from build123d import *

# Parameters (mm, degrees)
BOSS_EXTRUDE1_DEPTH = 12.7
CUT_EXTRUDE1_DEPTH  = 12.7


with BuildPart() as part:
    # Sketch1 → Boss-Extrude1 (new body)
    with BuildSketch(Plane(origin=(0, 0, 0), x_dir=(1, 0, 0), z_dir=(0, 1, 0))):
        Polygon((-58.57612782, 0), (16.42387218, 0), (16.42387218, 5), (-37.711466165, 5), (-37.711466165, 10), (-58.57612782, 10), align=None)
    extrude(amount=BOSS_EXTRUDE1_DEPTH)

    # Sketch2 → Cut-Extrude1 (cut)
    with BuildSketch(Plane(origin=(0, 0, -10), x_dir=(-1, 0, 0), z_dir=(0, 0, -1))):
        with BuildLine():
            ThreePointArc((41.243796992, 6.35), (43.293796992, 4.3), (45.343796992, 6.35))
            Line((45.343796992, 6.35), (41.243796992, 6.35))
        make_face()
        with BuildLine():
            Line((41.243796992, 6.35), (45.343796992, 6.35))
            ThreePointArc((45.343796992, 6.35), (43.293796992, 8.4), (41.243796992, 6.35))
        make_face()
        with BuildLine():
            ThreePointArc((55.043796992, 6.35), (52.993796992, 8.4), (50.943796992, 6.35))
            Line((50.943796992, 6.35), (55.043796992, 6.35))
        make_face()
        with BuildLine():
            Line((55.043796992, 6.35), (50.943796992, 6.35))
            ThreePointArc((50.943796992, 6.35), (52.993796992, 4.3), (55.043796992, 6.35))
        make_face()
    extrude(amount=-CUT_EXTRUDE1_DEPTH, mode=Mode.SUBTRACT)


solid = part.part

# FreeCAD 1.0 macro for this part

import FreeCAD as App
import Part
import Sketcher
from FreeCAD import Vector


def add_polygon(sketch, points):
    """Adds a closed chain of lines whose ends are joined by coincident constraints."""
    first, n = sketch.GeometryCount, len(points)
    for a, b in zip(points, points[1:] + points[:1]):
        sketch.addGeometry(Part.LineSegment(App.Vector(*a, 0), App.Vector(*b, 0)), False)
    for i in range(n):
        sketch.addConstraint(Sketcher.Constraint("Coincident", first + i, 2, first + (i + 1) % n, 1))

doc = App.newDocument("Part")
body = doc.addObject("PartDesign::Body", "Body")

sketch1 = body.newObject("Sketcher::SketchObject", "Sketch")
sketch1.AttachmentSupport = (doc.getObject("XZ_Plane"), [""])
sketch1.MapMode = "FlatFace"
add_polygon(sketch1, [(-59, 0), (16, 0), (16, -5), (-38, -5), (-38, -10), (-59, -10)])
sketch1.addConstraint(Sketcher.Constraint("Horizontal", 0))
sketch1.addConstraint(Sketcher.Constraint("Vertical", 1))
sketch1.addConstraint(Sketcher.Constraint("Horizontal", 2))
sketch1.addConstraint(Sketcher.Constraint("Vertical", 3))
sketch1.addConstraint(Sketcher.Constraint("Horizontal", 4))
sketch1.addConstraint(Sketcher.Constraint("Vertical", 5))
sketch1.addConstraint(Sketcher.Constraint("PointOnObject", 0, 2, -1))
sketch1.addConstraint(Sketcher.Constraint("Equal", 1, 3))
sketch1.addConstraint(Sketcher.Constraint("DistanceX", 0, 1, 0, 2, 75.0))
sketch1.addConstraint(Sketcher.Constraint("DistanceY", 1, 2, 1, 1, 5.0))
sketch1.addConstraint(Sketcher.Constraint("DistanceX", 2, 2, 2, 1, 54.135338))
sketch1.addConstraint(Sketcher.Constraint("DistanceX", -1, 1, 0, 2, 16.423872))
pad1 = body.newObject("PartDesign::Pad", "Pad")
pad1.Profile = sketch1
pad1.Length = 12.7
pad1.Reversed = True

sketch2 = body.newObject("Sketcher::SketchObject", "Sketch001")
sketch2.AttachmentSupport = (doc.getObject("XY_Plane"), [""])
sketch2.MapMode = "FlatFace"
sketch2.AttachmentOffset = App.Placement(Vector(0, 0, -10), App.Rotation())
sketch2.addGeometry(Part.Circle(Vector(-43.3, 6.3, 0), Vector(0, 0, 1), 2), False)
sketch2.addGeometry(Part.Circle(Vector(-53, 6.3, 0), Vector(0, 0, 1), 2), False)
sketch2.addConstraint(Sketcher.Constraint("Equal", 0, 1))
sketch2.addConstraint(Sketcher.Constraint("Horizontal", 0, 3, 1, 3))
sketch2.addConstraint(Sketcher.Constraint("Diameter", 0, 4.1))
sketch2.addConstraint(Sketcher.Constraint("DistanceX", 1, 3, 0, 3, 9.7))
sketch2.addConstraint(Sketcher.Constraint("DistanceY", -1, 1, 0, 3, 6.35))
sketch2.addConstraint(Sketcher.Constraint("DistanceX", 0, 3, -1, 1, 43.293797))
pocket1 = body.newObject("PartDesign::Pocket", "Pocket")
pocket1.Profile = sketch2
pocket1.Length = 12.7
pocket1.Reversed = True

doc.recompute()
